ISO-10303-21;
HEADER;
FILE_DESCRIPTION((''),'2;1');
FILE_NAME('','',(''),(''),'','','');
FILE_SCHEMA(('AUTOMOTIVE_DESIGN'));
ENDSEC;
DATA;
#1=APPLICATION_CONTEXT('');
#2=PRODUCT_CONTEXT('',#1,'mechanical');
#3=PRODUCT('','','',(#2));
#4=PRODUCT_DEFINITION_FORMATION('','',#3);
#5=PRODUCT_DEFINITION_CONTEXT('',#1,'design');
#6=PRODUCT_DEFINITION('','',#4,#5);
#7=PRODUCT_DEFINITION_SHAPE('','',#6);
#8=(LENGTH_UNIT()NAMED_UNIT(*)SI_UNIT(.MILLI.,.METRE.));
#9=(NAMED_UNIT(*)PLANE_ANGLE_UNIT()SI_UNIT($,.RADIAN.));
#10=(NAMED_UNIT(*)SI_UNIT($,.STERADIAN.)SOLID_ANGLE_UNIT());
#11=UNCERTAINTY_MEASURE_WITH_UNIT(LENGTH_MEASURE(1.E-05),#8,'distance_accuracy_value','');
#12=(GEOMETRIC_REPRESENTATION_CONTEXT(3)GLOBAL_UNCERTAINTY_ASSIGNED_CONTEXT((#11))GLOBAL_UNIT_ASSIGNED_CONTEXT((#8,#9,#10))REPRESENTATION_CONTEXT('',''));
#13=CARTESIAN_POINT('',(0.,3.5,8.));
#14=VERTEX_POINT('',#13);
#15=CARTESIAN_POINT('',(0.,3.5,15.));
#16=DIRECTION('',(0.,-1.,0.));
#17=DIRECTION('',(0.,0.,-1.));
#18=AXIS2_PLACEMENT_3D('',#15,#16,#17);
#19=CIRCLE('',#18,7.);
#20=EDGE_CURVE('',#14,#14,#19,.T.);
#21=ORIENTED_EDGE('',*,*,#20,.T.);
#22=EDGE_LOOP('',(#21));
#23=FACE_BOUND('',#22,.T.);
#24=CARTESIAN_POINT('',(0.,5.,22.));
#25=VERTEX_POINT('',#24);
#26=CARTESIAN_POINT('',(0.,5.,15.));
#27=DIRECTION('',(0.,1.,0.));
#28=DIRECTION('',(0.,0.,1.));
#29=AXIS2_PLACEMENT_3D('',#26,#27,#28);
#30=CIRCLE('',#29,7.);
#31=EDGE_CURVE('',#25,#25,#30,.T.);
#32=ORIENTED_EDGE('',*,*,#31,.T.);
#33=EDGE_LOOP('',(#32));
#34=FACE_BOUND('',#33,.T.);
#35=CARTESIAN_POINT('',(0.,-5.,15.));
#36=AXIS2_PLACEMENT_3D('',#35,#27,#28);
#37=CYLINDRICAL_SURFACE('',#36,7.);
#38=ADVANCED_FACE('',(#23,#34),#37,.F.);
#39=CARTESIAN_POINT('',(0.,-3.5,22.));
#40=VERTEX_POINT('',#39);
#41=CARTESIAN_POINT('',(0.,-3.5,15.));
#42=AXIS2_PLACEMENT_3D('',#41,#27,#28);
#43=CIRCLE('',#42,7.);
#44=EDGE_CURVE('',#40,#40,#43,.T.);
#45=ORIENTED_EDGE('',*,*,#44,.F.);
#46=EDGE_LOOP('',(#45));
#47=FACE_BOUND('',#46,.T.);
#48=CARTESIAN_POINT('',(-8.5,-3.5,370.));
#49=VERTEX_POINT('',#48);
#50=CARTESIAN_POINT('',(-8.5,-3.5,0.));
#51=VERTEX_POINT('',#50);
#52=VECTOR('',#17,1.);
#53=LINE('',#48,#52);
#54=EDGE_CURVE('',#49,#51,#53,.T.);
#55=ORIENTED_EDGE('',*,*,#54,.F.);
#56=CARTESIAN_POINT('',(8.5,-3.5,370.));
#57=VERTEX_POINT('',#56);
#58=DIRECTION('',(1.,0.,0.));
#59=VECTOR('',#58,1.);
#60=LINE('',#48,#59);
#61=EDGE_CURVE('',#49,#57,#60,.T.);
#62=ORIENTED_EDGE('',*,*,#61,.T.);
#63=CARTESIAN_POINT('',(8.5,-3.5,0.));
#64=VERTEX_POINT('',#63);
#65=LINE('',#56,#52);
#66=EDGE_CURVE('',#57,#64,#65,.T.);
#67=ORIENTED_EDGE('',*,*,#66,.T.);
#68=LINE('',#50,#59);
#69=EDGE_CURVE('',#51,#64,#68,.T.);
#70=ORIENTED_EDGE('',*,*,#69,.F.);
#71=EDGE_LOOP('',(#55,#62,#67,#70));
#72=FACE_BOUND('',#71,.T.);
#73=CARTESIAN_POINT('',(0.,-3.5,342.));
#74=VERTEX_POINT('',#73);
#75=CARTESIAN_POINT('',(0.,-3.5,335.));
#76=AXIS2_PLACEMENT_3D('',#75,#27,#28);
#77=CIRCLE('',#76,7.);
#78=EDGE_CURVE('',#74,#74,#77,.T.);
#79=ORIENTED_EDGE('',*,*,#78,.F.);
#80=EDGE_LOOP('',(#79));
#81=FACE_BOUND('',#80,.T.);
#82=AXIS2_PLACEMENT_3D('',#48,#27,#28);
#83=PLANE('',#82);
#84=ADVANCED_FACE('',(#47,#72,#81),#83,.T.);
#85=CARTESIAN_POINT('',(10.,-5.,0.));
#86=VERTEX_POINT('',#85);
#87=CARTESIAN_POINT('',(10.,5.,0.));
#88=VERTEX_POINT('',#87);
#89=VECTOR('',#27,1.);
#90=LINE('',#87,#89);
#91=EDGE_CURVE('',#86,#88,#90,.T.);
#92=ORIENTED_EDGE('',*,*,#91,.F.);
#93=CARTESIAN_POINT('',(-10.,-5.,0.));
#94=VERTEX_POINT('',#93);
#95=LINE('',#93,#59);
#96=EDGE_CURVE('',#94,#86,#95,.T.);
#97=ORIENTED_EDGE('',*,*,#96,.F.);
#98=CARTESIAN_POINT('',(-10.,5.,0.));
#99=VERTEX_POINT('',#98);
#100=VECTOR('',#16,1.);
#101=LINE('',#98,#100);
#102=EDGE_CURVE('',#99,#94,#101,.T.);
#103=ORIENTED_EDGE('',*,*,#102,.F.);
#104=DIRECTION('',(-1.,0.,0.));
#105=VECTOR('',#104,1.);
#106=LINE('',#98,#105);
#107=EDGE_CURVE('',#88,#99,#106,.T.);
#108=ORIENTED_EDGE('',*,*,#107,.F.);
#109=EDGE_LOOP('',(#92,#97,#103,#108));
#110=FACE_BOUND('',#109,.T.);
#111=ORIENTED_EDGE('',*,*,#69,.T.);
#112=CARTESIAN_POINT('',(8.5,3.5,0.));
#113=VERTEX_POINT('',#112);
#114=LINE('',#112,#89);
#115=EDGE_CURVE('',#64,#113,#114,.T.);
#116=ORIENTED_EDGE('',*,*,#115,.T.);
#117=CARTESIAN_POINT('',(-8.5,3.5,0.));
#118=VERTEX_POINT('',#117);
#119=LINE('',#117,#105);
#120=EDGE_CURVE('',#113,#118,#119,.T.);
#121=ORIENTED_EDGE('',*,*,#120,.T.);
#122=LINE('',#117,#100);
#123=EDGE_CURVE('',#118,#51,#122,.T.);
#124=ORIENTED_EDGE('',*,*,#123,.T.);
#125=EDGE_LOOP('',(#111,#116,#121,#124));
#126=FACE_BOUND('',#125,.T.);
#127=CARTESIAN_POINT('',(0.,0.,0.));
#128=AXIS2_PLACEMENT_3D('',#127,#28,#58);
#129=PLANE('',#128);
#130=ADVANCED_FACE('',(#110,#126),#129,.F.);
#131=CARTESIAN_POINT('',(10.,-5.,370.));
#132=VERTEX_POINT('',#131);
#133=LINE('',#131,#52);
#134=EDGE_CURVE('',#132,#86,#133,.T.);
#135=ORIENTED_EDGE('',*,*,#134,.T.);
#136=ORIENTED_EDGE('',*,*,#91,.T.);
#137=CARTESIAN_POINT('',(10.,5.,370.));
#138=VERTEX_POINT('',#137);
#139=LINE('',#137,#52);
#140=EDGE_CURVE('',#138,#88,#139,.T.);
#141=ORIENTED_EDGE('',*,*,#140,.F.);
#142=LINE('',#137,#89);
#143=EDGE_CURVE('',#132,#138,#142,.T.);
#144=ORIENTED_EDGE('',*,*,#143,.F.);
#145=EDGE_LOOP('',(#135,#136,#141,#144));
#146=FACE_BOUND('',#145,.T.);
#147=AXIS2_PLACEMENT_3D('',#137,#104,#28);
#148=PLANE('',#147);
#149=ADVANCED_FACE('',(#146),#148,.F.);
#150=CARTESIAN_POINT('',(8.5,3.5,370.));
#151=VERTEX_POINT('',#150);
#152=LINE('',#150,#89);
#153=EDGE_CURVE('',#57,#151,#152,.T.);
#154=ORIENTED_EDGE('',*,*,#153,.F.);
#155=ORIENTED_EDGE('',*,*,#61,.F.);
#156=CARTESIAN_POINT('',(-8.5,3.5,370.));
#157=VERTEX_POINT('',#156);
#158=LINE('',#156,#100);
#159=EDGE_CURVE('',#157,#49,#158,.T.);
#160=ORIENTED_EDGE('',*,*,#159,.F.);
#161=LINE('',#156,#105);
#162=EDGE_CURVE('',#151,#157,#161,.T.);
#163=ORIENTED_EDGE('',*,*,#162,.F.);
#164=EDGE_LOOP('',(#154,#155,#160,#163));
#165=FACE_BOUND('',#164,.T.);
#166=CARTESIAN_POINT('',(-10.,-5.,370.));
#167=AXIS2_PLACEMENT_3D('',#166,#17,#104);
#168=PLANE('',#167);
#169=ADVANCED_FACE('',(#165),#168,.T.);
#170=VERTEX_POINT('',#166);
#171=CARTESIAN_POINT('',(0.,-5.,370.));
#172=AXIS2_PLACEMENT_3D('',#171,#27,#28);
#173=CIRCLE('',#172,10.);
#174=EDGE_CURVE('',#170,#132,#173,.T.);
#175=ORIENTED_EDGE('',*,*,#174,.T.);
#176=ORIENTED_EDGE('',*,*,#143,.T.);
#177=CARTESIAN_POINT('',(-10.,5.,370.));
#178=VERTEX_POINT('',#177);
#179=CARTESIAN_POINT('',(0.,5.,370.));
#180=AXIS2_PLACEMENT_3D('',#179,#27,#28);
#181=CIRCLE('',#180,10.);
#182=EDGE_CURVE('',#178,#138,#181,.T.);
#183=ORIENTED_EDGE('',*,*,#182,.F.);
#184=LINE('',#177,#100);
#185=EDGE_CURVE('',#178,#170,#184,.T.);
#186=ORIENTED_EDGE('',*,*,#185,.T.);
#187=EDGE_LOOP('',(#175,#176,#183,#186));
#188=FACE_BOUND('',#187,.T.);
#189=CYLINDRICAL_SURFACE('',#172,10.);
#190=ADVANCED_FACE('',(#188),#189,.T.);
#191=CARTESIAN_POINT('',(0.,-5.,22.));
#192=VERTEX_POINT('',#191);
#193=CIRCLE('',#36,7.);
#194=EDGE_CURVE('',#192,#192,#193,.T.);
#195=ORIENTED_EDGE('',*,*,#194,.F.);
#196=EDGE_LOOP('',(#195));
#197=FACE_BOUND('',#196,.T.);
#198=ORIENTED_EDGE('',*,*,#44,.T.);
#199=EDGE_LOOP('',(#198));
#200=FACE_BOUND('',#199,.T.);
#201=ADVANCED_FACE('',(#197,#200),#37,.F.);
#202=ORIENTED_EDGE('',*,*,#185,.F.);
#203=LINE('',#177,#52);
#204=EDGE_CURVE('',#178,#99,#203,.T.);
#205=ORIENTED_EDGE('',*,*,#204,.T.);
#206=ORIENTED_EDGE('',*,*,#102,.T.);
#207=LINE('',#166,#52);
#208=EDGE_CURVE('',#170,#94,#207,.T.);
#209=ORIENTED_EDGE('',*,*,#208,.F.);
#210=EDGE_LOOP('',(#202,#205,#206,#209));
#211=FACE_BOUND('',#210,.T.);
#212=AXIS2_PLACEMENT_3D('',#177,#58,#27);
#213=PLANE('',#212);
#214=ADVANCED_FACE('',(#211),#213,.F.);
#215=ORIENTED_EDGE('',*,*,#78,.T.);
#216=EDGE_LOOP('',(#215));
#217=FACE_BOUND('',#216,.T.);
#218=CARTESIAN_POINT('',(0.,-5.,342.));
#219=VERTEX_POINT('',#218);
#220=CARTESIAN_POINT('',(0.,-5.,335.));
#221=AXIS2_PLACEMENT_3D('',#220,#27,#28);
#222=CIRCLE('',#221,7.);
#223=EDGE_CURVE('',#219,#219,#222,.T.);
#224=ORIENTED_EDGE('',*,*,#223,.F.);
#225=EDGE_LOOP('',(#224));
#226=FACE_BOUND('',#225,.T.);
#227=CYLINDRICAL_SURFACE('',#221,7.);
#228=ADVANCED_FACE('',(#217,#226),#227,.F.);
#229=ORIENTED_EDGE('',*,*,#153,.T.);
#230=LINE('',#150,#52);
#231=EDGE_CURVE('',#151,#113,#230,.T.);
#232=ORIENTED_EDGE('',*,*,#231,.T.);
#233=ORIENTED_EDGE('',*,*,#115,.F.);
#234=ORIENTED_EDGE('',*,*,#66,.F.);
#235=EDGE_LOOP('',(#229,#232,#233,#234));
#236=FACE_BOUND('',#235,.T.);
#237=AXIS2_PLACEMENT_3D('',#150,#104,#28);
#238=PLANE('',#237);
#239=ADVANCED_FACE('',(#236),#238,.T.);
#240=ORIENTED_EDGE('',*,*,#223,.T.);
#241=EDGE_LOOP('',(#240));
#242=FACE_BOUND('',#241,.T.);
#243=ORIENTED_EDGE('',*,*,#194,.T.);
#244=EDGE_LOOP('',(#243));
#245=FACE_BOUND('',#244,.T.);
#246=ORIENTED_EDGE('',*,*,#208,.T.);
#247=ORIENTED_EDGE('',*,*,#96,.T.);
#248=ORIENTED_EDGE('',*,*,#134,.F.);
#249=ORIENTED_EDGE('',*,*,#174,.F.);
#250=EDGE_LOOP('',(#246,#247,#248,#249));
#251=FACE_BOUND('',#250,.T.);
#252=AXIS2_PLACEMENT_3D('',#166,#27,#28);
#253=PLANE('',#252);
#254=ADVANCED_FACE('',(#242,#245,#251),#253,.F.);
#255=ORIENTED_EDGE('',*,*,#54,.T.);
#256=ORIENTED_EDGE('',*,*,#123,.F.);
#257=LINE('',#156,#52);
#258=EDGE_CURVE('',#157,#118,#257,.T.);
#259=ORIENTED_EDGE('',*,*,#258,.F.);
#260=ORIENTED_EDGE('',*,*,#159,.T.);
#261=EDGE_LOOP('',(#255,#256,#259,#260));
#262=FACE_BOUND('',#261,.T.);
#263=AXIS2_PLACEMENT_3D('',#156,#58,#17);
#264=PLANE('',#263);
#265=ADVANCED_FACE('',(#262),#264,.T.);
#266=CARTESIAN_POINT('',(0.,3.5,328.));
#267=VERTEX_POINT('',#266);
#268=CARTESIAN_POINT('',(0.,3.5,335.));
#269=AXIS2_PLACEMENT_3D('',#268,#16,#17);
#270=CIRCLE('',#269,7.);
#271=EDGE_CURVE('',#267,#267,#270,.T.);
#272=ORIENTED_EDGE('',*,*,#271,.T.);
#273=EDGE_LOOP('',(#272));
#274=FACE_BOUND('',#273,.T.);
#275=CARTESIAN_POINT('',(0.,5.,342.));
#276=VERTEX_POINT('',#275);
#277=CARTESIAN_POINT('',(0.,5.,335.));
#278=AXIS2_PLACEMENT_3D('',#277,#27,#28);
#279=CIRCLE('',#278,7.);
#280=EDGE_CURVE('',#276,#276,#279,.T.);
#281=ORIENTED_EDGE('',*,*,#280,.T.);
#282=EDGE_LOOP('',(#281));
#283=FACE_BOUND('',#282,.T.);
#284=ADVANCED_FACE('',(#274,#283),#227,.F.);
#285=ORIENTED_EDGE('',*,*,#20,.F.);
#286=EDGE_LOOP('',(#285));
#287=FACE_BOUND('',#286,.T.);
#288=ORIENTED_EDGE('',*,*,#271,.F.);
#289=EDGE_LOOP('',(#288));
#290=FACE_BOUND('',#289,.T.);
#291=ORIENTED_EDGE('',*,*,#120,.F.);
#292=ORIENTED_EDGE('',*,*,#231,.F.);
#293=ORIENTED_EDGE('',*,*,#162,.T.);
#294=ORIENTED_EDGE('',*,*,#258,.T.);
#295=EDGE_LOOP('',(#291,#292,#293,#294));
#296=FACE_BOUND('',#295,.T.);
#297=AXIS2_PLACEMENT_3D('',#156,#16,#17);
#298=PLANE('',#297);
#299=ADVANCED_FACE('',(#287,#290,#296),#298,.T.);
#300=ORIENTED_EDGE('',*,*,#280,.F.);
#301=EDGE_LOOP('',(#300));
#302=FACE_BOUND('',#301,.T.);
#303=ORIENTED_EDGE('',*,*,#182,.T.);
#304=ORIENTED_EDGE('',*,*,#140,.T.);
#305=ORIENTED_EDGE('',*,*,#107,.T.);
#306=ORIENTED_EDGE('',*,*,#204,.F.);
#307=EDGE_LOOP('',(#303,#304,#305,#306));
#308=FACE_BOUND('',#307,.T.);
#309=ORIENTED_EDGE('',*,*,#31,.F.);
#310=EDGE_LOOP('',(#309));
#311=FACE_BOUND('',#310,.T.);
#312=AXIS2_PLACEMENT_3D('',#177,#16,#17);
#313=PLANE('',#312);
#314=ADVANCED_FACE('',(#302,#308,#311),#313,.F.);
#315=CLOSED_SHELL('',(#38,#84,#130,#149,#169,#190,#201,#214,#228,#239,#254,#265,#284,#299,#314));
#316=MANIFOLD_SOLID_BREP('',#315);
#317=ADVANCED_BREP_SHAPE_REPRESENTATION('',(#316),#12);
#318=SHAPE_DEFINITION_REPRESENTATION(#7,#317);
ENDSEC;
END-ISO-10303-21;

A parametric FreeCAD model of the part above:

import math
import FreeCAD as App
import Part
import Sketcher
from FreeCAD import Vector
Q = App.Units.Quantity

doc = App.newDocument("Part")
body = doc.addObject("PartDesign::Body", "Body")

# Sketch on XY plane
sketch1 = body.newObject("Sketcher::SketchObject", "Sketch")
sketch1.AttachmentSupport = (doc.getObject("XY_Plane"), [""])
sketch1.MapMode = "FlatFace"
sketch1.addGeometry(Part.LineSegment(Vector(-10, 5, 0), Vector(-10, -5, 0)), False)
sketch1.addGeometry(Part.LineSegment(Vector(-10, -5, 0), Vector(10, -5, 0)), False)
sketch1.addGeometry(Part.LineSegment(Vector(10, -5, 0), Vector(10, 5, 0)), False)
sketch1.addGeometry(Part.LineSegment(Vector(10, 5, 0), Vector(-10, 5, 0)), False)
sketch1.addGeometry(Part.LineSegment(Vector(8.5, -3.5, 0), Vector(-8.5, -3.5, 0)), False)
sketch1.addGeometry(Part.LineSegment(Vector(-8.5, -3.5, 0), Vector(-8.5, 3.5, 0)), False)
sketch1.addGeometry(Part.LineSegment(Vector(-8.5, 3.5, 0), Vector(8.5, 3.5, 0)), False)
sketch1.addGeometry(Part.LineSegment(Vector(8.5, 3.5, 0), Vector(8.5, -3.5, 0)), False)
sketch1.addConstraint(Sketcher.Constraint("Coincident", 0, 2, 1, 1))
sketch1.addConstraint(Sketcher.Constraint("Coincident", 1, 2, 2, 1))
sketch1.addConstraint(Sketcher.Constraint("Coincident", 2, 2, 3, 1))
sketch1.addConstraint(Sketcher.Constraint("Coincident", 3, 2, 0, 1))
sketch1.addConstraint(Sketcher.Constraint("Coincident", 4, 2, 5, 1))
sketch1.addConstraint(Sketcher.Constraint("Coincident", 5, 2, 6, 1))
sketch1.addConstraint(Sketcher.Constraint("Coincident", 6, 2, 7, 1))
sketch1.addConstraint(Sketcher.Constraint("Coincident", 7, 2, 4, 1))
sketch1.addConstraint(Sketcher.Constraint("Vertical", 0))
sketch1.addConstraint(Sketcher.Constraint("Horizontal", 1))
sketch1.addConstraint(Sketcher.Constraint("Vertical", 2))
sketch1.addConstraint(Sketcher.Constraint("Horizontal", 3))
sketch1.addConstraint(Sketcher.Constraint("Horizontal", 4))
sketch1.addConstraint(Sketcher.Constraint("Vertical", 5))
sketch1.addConstraint(Sketcher.Constraint("Horizontal", 6))
sketch1.addConstraint(Sketcher.Constraint("Vertical", 7))
sketch1.addConstraint(Sketcher.Constraint("Symmetric", 0, 2, 2, 2, -1, 1))
sketch1.addConstraint(Sketcher.Constraint("Symmetric", 4, 2, 6, 2, -1, 1))
sketch1.addConstraint(Sketcher.Constraint("DistanceX", 1, 1, 1, 2, Q("20 mm")))
sketch1.addConstraint(Sketcher.Constraint("DistanceX", 4, 2, 4, 1, Q("17 mm")))
sketch1.addConstraint(Sketcher.Constraint("DistanceY", 0, 2, 0, 1, Q("10 mm")))
sketch1.addConstraint(Sketcher.Constraint("DistanceY", 5, 1, 5, 2, Q("7 mm")))
pad1 = body.newObject("PartDesign::Pad", "Pad")
pad1.Profile = sketch1
pad1.Length = 370

# Sketch on XZ plane
sketch2 = body.newObject("Sketcher::SketchObject", "Sketch001")
sketch2.AttachmentSupport = (doc.getObject("XZ_Plane"), [""])
sketch2.MapMode = "FlatFace"
sketch2.AttachmentOffset = App.Placement(Vector(0, 0, -5), App.Rotation())
sketch2.addGeometry(Part.Circle(Vector(0, 15, 0), Vector(0, 0, 1), 7), False)
sketch2.addGeometry(Part.Circle(Vector(0, 335, 0), Vector(0, 0, 1), 7), False)
sketch2.addConstraint(Sketcher.Constraint("Equal", 0, 1))
sketch2.addConstraint(Sketcher.Constraint("PointOnObject", 0, 3, -2))
sketch2.addConstraint(Sketcher.Constraint("PointOnObject", 1, 3, -2))
sketch2.addConstraint(Sketcher.Constraint("Diameter", 0, Q("14 mm")))
sketch2.addConstraint(Sketcher.Constraint("DistanceY", -1, 1, 0, 3, Q("15 mm")))
sketch2.addConstraint(Sketcher.Constraint("DistanceY", -1, 1, 1, 3, Q("335 mm")))
pocket1 = body.newObject("PartDesign::Pocket", "Pocket")
pocket1.Profile = sketch2
pocket1.Length = 10
pocket1.Reversed = True

# Sketch on XZ plane
sketch3 = body.newObject("Sketcher::SketchObject", "Sketch002")
sketch3.AttachmentSupport = (doc.getObject("XZ_Plane"), [""])
sketch3.MapMode = "FlatFace"
sketch3.AttachmentOffset = App.Placement(Vector(0, 0, -5), App.Rotation())
sketch3.addGeometry(Part.LineSegment(Vector(10, 370, 0), Vector(-10, 370, 0)), False)
sketch3.addGeometry(Part.ArcOfCircle(Part.Circle(Vector(0, 370, 0), Vector(0, 0, 1), 10), math.radians(0), math.radians(180)), False)
sketch3.addConstraint(Sketcher.Constraint("Coincident", 0, 1, 1, 1))
sketch3.addConstraint(Sketcher.Constraint("Coincident", 1, 2, 0, 2))
sketch3.addConstraint(Sketcher.Constraint("Horizontal", 0))
sketch3.addConstraint(Sketcher.Constraint("PointOnObject", 1, 3, -2))
sketch3.addConstraint(Sketcher.Constraint("Horizontal", 1, 3, 0, 1))
sketch3.addConstraint(Sketcher.Constraint("Radius", 1, Q("10 mm")))
sketch3.addConstraint(Sketcher.Constraint("DistanceY", -1, 1, 1, 3, Q("370 mm")))
pad2 = body.newObject("PartDesign::Pad", "Pad001")
pad2.Profile = sketch3
pad2.Length = 10

doc.recompute()
